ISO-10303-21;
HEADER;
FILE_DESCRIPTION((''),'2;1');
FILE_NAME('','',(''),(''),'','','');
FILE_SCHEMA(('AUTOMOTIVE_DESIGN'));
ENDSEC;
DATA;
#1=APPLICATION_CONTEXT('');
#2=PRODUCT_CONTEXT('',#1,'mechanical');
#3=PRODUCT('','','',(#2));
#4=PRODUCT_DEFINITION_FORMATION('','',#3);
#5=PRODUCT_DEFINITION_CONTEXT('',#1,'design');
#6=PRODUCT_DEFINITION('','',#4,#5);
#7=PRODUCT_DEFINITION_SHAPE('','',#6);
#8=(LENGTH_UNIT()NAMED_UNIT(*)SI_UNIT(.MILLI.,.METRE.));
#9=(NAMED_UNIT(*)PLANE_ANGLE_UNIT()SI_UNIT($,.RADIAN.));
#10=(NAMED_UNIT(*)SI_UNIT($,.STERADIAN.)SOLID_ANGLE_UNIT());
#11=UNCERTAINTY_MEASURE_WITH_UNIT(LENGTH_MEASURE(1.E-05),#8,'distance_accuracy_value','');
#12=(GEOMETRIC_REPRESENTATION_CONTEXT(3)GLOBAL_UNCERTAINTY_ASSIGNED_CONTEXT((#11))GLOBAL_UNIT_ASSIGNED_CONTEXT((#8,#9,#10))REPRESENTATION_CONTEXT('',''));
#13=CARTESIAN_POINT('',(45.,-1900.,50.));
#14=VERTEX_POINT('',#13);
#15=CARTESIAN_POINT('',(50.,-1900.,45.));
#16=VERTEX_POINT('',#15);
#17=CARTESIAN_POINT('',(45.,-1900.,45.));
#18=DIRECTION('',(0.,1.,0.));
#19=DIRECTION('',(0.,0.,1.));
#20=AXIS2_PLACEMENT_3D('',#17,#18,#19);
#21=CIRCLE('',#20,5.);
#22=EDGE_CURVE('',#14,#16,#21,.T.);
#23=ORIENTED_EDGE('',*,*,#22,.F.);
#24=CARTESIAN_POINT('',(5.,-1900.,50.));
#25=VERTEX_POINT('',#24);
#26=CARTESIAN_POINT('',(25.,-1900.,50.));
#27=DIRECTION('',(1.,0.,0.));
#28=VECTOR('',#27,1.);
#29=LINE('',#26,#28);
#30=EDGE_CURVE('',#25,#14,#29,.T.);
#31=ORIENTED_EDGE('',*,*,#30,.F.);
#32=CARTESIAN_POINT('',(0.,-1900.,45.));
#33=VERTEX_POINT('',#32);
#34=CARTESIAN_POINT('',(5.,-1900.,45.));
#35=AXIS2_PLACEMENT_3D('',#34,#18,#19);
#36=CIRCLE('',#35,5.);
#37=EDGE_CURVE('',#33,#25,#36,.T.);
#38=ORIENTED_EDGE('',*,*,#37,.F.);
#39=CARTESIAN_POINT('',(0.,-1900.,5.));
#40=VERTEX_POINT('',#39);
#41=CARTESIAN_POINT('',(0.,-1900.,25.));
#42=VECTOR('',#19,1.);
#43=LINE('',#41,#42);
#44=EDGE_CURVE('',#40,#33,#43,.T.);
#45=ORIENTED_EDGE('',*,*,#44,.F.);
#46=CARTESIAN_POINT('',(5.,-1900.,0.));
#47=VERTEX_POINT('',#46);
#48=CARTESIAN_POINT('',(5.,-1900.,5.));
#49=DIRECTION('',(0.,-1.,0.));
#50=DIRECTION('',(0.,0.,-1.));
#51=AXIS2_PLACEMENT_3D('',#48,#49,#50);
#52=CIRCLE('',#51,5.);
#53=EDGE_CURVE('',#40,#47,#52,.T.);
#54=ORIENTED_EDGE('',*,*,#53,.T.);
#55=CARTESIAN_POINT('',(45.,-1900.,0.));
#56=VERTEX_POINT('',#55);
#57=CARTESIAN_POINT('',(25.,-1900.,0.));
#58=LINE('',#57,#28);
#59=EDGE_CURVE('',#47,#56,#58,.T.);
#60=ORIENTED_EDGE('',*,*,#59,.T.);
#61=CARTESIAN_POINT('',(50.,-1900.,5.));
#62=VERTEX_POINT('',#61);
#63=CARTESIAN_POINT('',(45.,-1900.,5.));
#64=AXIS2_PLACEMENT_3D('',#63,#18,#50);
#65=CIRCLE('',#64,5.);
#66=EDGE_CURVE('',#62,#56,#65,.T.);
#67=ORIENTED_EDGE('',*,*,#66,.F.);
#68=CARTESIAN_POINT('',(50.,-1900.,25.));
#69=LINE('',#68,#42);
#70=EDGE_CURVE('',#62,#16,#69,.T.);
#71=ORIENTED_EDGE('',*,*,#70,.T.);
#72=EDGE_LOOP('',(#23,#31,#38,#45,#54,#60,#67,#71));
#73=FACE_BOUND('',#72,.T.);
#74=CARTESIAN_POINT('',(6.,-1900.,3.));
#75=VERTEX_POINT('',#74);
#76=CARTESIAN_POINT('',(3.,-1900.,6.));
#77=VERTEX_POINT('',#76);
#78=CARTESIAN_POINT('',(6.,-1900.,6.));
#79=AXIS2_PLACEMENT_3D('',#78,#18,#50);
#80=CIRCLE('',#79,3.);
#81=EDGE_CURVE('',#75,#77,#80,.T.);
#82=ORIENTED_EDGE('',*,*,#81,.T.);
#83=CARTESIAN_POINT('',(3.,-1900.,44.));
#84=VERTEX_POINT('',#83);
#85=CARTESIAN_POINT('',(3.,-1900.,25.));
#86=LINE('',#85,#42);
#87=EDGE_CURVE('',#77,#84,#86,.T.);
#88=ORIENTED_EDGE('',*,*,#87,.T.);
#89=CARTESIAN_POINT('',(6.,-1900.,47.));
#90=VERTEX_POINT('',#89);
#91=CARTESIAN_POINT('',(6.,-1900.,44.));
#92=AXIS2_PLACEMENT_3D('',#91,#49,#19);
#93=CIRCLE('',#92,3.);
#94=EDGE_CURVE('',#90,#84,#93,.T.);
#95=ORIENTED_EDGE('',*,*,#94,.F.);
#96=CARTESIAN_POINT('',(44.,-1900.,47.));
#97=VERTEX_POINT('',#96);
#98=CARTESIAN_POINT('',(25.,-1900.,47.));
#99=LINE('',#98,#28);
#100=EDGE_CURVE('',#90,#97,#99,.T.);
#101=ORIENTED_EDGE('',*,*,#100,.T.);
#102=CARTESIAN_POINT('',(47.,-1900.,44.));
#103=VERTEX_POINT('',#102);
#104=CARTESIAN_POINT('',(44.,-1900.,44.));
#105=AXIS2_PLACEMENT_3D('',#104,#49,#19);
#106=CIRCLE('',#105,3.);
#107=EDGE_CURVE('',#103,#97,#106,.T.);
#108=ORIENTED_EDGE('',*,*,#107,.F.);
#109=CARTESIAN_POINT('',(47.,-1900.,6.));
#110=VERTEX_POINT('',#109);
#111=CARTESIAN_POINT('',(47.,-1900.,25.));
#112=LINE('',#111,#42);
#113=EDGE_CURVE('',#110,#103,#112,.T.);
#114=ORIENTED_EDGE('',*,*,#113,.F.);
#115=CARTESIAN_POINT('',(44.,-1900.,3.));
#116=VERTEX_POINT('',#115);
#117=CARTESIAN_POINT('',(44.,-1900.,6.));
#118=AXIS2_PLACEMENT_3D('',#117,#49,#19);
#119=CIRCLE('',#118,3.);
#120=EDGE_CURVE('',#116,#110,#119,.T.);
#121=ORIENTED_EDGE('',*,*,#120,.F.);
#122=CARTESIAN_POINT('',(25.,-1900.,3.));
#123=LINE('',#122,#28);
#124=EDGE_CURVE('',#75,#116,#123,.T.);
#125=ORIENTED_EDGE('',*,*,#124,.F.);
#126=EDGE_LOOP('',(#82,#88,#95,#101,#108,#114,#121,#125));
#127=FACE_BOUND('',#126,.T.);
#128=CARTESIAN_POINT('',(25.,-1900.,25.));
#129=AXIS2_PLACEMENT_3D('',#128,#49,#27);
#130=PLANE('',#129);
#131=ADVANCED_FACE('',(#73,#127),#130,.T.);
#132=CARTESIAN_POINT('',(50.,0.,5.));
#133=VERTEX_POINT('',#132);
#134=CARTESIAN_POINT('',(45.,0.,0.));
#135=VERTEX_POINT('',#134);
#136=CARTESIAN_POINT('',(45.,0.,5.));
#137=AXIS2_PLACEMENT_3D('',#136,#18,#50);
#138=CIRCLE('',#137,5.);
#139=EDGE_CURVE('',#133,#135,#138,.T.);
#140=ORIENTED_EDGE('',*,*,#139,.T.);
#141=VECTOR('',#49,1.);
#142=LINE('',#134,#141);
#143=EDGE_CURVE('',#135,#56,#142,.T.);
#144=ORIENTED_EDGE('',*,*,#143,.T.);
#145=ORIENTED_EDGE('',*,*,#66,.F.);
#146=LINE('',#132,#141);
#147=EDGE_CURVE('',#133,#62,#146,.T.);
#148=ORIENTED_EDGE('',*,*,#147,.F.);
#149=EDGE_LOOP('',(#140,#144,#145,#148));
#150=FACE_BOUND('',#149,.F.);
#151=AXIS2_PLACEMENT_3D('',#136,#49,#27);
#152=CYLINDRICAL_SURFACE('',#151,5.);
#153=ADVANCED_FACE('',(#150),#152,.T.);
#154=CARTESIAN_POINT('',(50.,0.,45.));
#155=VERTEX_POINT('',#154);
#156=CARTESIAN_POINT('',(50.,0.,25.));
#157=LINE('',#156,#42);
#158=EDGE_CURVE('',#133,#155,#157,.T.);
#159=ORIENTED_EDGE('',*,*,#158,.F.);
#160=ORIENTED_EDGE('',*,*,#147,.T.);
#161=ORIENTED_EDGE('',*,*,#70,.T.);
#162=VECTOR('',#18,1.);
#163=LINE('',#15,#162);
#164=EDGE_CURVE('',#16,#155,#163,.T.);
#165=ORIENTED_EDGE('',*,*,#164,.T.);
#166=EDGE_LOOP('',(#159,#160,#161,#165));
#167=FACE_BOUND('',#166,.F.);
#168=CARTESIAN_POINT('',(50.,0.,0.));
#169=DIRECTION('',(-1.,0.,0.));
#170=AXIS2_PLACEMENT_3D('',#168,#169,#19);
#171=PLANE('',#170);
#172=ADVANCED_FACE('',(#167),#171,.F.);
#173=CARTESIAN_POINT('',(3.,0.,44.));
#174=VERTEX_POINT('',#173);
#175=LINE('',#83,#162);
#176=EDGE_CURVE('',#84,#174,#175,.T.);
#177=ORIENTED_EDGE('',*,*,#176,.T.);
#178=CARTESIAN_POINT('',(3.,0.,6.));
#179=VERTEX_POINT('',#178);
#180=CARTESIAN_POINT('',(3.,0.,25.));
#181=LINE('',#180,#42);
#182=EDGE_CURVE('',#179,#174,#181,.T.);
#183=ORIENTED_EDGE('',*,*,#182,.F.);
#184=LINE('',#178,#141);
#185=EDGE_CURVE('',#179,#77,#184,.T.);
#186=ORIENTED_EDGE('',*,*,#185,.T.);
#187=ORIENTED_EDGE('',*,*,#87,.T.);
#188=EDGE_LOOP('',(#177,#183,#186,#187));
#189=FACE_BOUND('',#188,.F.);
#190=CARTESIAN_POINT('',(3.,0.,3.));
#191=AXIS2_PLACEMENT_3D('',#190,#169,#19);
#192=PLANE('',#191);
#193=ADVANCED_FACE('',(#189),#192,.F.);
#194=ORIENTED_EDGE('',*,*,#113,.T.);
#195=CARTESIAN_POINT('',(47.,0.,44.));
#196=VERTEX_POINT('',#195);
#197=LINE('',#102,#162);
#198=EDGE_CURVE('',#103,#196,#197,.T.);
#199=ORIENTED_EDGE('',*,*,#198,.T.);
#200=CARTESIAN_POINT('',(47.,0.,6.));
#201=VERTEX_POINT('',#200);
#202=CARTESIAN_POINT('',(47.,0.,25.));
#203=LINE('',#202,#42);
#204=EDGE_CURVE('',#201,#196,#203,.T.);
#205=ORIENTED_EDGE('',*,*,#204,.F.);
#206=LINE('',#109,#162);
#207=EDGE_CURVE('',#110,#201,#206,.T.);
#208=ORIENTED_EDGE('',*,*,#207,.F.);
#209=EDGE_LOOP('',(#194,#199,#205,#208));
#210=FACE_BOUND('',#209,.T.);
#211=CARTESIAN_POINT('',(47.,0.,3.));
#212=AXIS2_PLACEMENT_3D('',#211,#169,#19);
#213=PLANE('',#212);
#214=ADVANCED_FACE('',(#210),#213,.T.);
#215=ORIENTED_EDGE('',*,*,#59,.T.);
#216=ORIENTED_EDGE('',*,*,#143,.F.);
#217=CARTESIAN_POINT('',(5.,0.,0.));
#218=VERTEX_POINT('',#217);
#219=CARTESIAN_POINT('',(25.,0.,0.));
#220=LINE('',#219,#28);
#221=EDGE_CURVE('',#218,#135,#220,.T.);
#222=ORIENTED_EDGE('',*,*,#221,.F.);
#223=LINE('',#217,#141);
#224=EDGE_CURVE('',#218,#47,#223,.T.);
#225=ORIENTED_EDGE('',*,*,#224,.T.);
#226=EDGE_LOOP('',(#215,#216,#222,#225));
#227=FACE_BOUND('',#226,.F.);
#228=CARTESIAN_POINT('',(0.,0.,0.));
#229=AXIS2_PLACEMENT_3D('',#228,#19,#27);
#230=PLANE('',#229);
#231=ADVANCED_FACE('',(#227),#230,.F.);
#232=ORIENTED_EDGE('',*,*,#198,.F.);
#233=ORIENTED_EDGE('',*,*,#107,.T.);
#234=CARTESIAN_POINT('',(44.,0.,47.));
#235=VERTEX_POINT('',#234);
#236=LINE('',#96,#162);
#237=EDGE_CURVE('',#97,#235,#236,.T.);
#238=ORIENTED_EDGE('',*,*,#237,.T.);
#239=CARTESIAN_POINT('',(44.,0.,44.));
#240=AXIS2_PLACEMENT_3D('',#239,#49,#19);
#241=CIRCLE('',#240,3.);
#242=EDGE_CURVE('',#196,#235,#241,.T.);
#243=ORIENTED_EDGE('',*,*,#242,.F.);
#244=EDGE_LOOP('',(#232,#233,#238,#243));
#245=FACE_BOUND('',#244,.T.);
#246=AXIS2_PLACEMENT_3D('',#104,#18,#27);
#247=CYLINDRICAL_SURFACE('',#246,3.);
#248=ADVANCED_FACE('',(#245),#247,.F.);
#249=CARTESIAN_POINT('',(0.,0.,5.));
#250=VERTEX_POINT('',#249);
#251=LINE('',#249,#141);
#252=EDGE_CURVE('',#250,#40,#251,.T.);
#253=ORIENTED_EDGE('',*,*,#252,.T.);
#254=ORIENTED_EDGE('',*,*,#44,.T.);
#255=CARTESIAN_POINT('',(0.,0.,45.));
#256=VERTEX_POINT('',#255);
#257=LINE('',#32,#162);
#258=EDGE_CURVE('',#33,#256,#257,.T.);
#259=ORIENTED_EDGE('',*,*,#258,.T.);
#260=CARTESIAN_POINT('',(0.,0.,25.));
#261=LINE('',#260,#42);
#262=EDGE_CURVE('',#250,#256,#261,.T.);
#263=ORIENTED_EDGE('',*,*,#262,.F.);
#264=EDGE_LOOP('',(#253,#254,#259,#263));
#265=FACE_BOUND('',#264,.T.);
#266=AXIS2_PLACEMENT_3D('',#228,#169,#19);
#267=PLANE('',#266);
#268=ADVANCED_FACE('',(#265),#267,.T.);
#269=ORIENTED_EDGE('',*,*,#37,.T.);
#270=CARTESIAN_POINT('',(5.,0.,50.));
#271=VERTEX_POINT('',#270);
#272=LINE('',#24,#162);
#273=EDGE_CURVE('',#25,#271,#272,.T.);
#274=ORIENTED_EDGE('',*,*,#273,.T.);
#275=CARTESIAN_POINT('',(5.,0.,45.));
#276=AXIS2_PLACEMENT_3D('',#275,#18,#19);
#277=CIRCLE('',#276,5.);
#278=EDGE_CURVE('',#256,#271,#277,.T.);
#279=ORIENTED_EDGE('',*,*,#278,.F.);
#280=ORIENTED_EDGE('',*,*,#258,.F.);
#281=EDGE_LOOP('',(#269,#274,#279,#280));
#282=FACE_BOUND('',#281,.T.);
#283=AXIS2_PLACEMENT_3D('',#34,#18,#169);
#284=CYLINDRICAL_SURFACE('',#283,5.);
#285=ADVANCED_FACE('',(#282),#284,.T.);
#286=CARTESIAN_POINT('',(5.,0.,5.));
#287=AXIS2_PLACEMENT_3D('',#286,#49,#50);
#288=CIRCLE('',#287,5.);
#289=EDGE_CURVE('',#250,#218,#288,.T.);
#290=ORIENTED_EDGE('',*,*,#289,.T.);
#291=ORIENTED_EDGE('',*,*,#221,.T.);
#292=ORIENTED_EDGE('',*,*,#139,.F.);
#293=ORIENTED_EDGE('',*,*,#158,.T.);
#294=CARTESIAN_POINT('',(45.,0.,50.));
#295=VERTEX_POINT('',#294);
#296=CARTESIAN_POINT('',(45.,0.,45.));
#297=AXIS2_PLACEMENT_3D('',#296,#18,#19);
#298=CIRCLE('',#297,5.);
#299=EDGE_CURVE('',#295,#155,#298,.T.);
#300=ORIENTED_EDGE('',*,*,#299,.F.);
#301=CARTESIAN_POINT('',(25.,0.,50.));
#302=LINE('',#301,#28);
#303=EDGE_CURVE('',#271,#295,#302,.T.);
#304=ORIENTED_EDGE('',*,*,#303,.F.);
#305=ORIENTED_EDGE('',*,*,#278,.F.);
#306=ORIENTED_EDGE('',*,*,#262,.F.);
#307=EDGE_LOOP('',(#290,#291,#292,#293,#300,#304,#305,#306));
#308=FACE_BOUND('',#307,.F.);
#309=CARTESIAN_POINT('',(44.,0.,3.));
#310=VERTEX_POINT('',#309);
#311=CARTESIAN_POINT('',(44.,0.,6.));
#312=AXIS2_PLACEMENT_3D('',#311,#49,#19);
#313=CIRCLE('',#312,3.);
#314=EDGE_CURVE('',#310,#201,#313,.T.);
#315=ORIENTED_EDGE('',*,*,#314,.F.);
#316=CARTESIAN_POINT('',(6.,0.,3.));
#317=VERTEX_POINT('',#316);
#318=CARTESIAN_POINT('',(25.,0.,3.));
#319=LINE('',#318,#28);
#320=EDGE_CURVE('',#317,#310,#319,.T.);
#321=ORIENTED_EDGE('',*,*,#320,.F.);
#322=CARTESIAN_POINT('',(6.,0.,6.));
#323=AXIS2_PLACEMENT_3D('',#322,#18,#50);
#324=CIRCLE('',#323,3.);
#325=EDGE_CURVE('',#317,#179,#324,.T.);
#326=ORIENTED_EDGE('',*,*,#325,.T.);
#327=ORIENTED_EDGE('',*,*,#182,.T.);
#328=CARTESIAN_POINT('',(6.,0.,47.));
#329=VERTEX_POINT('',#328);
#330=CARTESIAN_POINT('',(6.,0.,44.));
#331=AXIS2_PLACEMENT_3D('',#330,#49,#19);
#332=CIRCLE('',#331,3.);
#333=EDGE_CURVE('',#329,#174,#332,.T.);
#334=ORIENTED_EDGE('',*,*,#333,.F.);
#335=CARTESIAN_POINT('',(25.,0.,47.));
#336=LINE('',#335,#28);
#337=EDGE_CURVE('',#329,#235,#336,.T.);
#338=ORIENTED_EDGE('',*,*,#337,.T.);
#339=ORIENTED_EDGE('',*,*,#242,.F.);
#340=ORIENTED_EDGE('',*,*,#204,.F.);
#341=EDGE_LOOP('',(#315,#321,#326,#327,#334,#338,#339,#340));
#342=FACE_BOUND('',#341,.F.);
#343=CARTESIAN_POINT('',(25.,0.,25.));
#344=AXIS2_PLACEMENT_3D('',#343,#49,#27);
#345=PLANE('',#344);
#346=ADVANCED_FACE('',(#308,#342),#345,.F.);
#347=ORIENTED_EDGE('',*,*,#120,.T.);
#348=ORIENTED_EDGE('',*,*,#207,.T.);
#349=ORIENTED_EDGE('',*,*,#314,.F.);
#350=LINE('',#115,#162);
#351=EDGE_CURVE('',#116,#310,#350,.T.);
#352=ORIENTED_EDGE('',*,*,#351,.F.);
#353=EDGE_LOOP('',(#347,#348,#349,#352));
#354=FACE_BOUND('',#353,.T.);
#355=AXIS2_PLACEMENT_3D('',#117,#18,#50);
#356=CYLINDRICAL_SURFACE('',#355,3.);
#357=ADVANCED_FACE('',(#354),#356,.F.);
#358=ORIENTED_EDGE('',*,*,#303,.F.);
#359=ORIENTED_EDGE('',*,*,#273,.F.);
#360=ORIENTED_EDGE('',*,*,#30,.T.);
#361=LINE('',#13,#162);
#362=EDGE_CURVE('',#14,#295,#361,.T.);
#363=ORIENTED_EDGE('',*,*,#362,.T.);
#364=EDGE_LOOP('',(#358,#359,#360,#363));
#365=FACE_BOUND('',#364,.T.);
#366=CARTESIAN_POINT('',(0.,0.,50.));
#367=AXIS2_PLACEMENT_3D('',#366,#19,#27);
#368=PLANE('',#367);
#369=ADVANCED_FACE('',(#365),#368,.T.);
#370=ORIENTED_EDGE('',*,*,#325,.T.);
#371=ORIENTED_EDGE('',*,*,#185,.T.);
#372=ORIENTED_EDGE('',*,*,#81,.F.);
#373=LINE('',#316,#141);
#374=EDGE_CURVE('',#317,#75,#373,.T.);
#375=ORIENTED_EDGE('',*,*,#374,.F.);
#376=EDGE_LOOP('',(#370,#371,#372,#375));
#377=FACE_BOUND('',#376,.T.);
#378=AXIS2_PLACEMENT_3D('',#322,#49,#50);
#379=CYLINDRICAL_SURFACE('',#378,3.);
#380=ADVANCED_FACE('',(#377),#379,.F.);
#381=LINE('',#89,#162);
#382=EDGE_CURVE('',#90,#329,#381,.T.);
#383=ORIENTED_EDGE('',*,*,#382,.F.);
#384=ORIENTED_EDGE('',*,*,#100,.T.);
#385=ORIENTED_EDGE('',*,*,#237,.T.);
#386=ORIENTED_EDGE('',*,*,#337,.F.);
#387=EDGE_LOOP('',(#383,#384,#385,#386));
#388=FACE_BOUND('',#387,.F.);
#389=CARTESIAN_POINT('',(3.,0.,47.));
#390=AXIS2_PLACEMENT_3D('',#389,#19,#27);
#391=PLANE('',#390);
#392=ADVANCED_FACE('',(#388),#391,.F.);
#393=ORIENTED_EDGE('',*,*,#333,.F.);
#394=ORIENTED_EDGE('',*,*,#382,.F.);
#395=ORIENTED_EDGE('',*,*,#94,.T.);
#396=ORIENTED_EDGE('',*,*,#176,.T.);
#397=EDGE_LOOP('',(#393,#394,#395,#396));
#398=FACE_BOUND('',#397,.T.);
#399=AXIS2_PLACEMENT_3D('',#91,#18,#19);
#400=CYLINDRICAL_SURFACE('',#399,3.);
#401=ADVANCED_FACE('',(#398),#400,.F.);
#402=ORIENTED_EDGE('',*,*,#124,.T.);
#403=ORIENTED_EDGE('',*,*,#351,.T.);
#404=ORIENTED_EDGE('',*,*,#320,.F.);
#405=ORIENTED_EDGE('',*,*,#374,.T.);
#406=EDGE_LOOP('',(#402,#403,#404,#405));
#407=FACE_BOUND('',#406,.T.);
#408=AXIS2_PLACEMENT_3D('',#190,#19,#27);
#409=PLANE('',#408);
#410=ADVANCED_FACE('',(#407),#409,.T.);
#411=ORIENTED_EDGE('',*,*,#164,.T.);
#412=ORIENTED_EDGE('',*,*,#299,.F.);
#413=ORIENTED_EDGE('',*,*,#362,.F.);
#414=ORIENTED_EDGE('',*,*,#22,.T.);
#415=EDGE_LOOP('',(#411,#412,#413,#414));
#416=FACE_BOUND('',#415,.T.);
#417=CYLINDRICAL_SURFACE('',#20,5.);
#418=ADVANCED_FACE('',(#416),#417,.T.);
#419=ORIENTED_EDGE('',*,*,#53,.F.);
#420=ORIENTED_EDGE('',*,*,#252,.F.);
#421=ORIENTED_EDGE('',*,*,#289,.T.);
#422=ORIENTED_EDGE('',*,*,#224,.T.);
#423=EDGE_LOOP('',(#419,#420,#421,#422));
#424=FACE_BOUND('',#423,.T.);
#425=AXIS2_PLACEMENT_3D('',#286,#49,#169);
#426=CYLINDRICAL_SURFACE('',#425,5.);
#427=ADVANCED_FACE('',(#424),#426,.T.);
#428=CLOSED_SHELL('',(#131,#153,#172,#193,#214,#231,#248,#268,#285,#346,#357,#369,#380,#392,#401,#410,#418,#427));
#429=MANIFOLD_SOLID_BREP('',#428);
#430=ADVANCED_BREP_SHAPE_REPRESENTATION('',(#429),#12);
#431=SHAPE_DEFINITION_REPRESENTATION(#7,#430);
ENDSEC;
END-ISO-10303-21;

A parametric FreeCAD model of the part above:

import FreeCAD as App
import Part
import Sketcher

V = App.Vector
Q = App.Units.Quantity


def edges_at(feature, points):
    """Names of the edges that pass closest to the given points."""
    edges = feature.Shape.Edges
    near = lambda p: min(range(len(edges)), key=lambda i: edges[i].distToShape(Part.Vertex(*p))[0])
    return sorted({f"Edge{near(p) + 1}" for p in points})

doc = App.newDocument("Part")
body = doc.addObject("PartDesign::Body", "Body")

# Sketch on XZ plane
sketch1 = body.newObject("Sketcher::SketchObject", "Sketch")
sketch1.AttachmentSupport = (doc.getObject("XZ_Plane"), [""])
sketch1.MapMode = "FlatFace"
sketch1.addGeometry(Part.LineSegment(V(0, 50, 0), V(0, 0, 0)), False)
sketch1.addGeometry(Part.LineSegment(V(0, 0, 0), V(50, 0, 0)), False)
sketch1.addGeometry(Part.LineSegment(V(50, 0, 0), V(50, 50, 0)), False)
sketch1.addGeometry(Part.LineSegment(V(50, 50, 0), V(0, 50, 0)), False)
sketch1.addGeometry(Part.LineSegment(V(47, 3, 0), V(3, 3, 0)), False)
sketch1.addGeometry(Part.LineSegment(V(3, 3, 0), V(3, 47, 0)), False)
sketch1.addGeometry(Part.LineSegment(V(3, 47, 0), V(47, 47, 0)), False)
sketch1.addGeometry(Part.LineSegment(V(47, 47, 0), V(47, 3, 0)), False)
sketch1.addConstraint(Sketcher.Constraint("Coincident", 0, 2, 1, 1))
sketch1.addConstraint(Sketcher.Constraint("Coincident", 1, 2, 2, 1))
sketch1.addConstraint(Sketcher.Constraint("Coincident", 2, 2, 3, 1))
sketch1.addConstraint(Sketcher.Constraint("Coincident", 3, 2, 0, 1))
sketch1.addConstraint(Sketcher.Constraint("Coincident", 4, 2, 5, 1))
sketch1.addConstraint(Sketcher.Constraint("Coincident", 5, 2, 6, 1))
sketch1.addConstraint(Sketcher.Constraint("Coincident", 6, 2, 7, 1))
sketch1.addConstraint(Sketcher.Constraint("Coincident", 7, 2, 4, 1))
sketch1.addConstraint(Sketcher.Constraint("Vertical", 0))
sketch1.addConstraint(Sketcher.Constraint("Horizontal", 1))
sketch1.addConstraint(Sketcher.Constraint("Vertical", 2))
sketch1.addConstraint(Sketcher.Constraint("Horizontal", 3))
sketch1.addConstraint(Sketcher.Constraint("Horizontal", 4))
sketch1.addConstraint(Sketcher.Constraint("Vertical", 5))
sketch1.addConstraint(Sketcher.Constraint("Horizontal", 6))
sketch1.addConstraint(Sketcher.Constraint("Vertical", 7))
sketch1.addConstraint(Sketcher.Constraint("Coincident", 0, 2, -1, 1))
sketch1.addConstraint(Sketcher.Constraint("Equal", 3, 0))
sketch1.addConstraint(Sketcher.Constraint("Equal", 6, 5))
sketch1.addConstraint(Sketcher.Constraint("DistanceX", 1, 1, 1, 2, Q("50 mm")))
sketch1.addConstraint(Sketcher.Constraint("DistanceX", 4, 2, 4, 1, Q("44 mm")))
sketch1.addConstraint(Sketcher.Constraint("DistanceX", -1, 1, 4, 2, Q("3 mm")))
sketch1.addConstraint(Sketcher.Constraint("DistanceY", -1, 1, 4, 2, Q("3 mm")))
pad1 = body.newObject("PartDesign::Pad", "Pad")
pad1.Profile = sketch1
pad1.Length = 1900

# Sketch on XZ plane
sketch2 = body.newObject("Sketcher::SketchObject", "Sketch001")
sketch2.AttachmentSupport = (doc.getObject("XZ_Plane"), [""])
sketch2.MapMode = "FlatFace"
sketch2.addGeometry(Part.LineSegment(V(0, 50, 0), V(0, 0, 0)), False)
sketch2.addGeometry(Part.LineSegment(V(0, 0, 0), V(50, 0, 0)), False)
sketch2.addGeometry(Part.LineSegment(V(50, 0, 0), V(50, 50, 0)), False)
sketch2.addGeometry(Part.LineSegment(V(50, 50, 0), V(0, 50, 0)), False)
sketch2.addGeometry(Part.LineSegment(V(47, 3, 0), V(3, 3, 0)), False)
sketch2.addGeometry(Part.LineSegment(V(3, 3, 0), V(3, 47, 0)), False)
sketch2.addGeometry(Part.LineSegment(V(3, 47, 0), V(47, 47, 0)), False)
sketch2.addGeometry(Part.LineSegment(V(47, 47, 0), V(47, 3, 0)), False)
sketch2.addConstraint(Sketcher.Constraint("Coincident", 0, 2, 1, 1))
sketch2.addConstraint(Sketcher.Constraint("Coincident", 1, 2, 2, 1))
sketch2.addConstraint(Sketcher.Constraint("Coincident", 2, 2, 3, 1))
sketch2.addConstraint(Sketcher.Constraint("Coincident", 3, 2, 0, 1))
sketch2.addConstraint(Sketcher.Constraint("Coincident", 4, 2, 5, 1))
sketch2.addConstraint(Sketcher.Constraint("Coincident", 5, 2, 6, 1))
sketch2.addConstraint(Sketcher.Constraint("Coincident", 6, 2, 7, 1))
sketch2.addConstraint(Sketcher.Constraint("Coincident", 7, 2, 4, 1))
sketch2.addConstraint(Sketcher.Constraint("Vertical", 0))
sketch2.addConstraint(Sketcher.Constraint("Horizontal", 1))
sketch2.addConstraint(Sketcher.Constraint("Vertical", 2))
sketch2.addConstraint(Sketcher.Constraint("Horizontal", 3))
sketch2.addConstraint(Sketcher.Constraint("Horizontal", 4))
sketch2.addConstraint(Sketcher.Constraint("Vertical", 5))
sketch2.addConstraint(Sketcher.Constraint("Horizontal", 6))
sketch2.addConstraint(Sketcher.Constraint("Vertical", 7))
sketch2.addConstraint(Sketcher.Constraint("Coincident", 0, 2, -1, 1))
sketch2.addConstraint(Sketcher.Constraint("Equal", 3, 0))
sketch2.addConstraint(Sketcher.Constraint("Equal", 6, 5))
sketch2.addConstraint(Sketcher.Constraint("DistanceX", 1, 1, 1, 2, Q("50 mm")))
sketch2.addConstraint(Sketcher.Constraint("DistanceX", 4, 2, 4, 1, Q("44 mm")))
sketch2.addConstraint(Sketcher.Constraint("DistanceX", -1, 1, 4, 2, Q("3 mm")))
sketch2.addConstraint(Sketcher.Constraint("DistanceY", -1, 1, 4, 2, Q("3 mm")))
pad2 = body.newObject("PartDesign::Pad", "Pad001")
pad2.Profile = sketch2
pad2.Length = 100
doc.recompute()

fillet = body.newObject("PartDesign::Fillet", "Fillet")
fillet.Base = (pad2, edges_at(pad2, [
    (50, -950, 50),
    (50, -950, 0),
    (0, -950, 0),
    (0, -950, 50),
]))
fillet.Radius = 5
doc.recompute()

fillet2 = body.newObject("PartDesign::Fillet", "Fillet001")
fillet2.Base = (fillet, edges_at(fillet, [
    (47, -950, 47),
    (3, -950, 3),
    (3, -950, 47),
    (47, -950, 3),
]))
fillet2.Radius = 3

doc.recompute()
